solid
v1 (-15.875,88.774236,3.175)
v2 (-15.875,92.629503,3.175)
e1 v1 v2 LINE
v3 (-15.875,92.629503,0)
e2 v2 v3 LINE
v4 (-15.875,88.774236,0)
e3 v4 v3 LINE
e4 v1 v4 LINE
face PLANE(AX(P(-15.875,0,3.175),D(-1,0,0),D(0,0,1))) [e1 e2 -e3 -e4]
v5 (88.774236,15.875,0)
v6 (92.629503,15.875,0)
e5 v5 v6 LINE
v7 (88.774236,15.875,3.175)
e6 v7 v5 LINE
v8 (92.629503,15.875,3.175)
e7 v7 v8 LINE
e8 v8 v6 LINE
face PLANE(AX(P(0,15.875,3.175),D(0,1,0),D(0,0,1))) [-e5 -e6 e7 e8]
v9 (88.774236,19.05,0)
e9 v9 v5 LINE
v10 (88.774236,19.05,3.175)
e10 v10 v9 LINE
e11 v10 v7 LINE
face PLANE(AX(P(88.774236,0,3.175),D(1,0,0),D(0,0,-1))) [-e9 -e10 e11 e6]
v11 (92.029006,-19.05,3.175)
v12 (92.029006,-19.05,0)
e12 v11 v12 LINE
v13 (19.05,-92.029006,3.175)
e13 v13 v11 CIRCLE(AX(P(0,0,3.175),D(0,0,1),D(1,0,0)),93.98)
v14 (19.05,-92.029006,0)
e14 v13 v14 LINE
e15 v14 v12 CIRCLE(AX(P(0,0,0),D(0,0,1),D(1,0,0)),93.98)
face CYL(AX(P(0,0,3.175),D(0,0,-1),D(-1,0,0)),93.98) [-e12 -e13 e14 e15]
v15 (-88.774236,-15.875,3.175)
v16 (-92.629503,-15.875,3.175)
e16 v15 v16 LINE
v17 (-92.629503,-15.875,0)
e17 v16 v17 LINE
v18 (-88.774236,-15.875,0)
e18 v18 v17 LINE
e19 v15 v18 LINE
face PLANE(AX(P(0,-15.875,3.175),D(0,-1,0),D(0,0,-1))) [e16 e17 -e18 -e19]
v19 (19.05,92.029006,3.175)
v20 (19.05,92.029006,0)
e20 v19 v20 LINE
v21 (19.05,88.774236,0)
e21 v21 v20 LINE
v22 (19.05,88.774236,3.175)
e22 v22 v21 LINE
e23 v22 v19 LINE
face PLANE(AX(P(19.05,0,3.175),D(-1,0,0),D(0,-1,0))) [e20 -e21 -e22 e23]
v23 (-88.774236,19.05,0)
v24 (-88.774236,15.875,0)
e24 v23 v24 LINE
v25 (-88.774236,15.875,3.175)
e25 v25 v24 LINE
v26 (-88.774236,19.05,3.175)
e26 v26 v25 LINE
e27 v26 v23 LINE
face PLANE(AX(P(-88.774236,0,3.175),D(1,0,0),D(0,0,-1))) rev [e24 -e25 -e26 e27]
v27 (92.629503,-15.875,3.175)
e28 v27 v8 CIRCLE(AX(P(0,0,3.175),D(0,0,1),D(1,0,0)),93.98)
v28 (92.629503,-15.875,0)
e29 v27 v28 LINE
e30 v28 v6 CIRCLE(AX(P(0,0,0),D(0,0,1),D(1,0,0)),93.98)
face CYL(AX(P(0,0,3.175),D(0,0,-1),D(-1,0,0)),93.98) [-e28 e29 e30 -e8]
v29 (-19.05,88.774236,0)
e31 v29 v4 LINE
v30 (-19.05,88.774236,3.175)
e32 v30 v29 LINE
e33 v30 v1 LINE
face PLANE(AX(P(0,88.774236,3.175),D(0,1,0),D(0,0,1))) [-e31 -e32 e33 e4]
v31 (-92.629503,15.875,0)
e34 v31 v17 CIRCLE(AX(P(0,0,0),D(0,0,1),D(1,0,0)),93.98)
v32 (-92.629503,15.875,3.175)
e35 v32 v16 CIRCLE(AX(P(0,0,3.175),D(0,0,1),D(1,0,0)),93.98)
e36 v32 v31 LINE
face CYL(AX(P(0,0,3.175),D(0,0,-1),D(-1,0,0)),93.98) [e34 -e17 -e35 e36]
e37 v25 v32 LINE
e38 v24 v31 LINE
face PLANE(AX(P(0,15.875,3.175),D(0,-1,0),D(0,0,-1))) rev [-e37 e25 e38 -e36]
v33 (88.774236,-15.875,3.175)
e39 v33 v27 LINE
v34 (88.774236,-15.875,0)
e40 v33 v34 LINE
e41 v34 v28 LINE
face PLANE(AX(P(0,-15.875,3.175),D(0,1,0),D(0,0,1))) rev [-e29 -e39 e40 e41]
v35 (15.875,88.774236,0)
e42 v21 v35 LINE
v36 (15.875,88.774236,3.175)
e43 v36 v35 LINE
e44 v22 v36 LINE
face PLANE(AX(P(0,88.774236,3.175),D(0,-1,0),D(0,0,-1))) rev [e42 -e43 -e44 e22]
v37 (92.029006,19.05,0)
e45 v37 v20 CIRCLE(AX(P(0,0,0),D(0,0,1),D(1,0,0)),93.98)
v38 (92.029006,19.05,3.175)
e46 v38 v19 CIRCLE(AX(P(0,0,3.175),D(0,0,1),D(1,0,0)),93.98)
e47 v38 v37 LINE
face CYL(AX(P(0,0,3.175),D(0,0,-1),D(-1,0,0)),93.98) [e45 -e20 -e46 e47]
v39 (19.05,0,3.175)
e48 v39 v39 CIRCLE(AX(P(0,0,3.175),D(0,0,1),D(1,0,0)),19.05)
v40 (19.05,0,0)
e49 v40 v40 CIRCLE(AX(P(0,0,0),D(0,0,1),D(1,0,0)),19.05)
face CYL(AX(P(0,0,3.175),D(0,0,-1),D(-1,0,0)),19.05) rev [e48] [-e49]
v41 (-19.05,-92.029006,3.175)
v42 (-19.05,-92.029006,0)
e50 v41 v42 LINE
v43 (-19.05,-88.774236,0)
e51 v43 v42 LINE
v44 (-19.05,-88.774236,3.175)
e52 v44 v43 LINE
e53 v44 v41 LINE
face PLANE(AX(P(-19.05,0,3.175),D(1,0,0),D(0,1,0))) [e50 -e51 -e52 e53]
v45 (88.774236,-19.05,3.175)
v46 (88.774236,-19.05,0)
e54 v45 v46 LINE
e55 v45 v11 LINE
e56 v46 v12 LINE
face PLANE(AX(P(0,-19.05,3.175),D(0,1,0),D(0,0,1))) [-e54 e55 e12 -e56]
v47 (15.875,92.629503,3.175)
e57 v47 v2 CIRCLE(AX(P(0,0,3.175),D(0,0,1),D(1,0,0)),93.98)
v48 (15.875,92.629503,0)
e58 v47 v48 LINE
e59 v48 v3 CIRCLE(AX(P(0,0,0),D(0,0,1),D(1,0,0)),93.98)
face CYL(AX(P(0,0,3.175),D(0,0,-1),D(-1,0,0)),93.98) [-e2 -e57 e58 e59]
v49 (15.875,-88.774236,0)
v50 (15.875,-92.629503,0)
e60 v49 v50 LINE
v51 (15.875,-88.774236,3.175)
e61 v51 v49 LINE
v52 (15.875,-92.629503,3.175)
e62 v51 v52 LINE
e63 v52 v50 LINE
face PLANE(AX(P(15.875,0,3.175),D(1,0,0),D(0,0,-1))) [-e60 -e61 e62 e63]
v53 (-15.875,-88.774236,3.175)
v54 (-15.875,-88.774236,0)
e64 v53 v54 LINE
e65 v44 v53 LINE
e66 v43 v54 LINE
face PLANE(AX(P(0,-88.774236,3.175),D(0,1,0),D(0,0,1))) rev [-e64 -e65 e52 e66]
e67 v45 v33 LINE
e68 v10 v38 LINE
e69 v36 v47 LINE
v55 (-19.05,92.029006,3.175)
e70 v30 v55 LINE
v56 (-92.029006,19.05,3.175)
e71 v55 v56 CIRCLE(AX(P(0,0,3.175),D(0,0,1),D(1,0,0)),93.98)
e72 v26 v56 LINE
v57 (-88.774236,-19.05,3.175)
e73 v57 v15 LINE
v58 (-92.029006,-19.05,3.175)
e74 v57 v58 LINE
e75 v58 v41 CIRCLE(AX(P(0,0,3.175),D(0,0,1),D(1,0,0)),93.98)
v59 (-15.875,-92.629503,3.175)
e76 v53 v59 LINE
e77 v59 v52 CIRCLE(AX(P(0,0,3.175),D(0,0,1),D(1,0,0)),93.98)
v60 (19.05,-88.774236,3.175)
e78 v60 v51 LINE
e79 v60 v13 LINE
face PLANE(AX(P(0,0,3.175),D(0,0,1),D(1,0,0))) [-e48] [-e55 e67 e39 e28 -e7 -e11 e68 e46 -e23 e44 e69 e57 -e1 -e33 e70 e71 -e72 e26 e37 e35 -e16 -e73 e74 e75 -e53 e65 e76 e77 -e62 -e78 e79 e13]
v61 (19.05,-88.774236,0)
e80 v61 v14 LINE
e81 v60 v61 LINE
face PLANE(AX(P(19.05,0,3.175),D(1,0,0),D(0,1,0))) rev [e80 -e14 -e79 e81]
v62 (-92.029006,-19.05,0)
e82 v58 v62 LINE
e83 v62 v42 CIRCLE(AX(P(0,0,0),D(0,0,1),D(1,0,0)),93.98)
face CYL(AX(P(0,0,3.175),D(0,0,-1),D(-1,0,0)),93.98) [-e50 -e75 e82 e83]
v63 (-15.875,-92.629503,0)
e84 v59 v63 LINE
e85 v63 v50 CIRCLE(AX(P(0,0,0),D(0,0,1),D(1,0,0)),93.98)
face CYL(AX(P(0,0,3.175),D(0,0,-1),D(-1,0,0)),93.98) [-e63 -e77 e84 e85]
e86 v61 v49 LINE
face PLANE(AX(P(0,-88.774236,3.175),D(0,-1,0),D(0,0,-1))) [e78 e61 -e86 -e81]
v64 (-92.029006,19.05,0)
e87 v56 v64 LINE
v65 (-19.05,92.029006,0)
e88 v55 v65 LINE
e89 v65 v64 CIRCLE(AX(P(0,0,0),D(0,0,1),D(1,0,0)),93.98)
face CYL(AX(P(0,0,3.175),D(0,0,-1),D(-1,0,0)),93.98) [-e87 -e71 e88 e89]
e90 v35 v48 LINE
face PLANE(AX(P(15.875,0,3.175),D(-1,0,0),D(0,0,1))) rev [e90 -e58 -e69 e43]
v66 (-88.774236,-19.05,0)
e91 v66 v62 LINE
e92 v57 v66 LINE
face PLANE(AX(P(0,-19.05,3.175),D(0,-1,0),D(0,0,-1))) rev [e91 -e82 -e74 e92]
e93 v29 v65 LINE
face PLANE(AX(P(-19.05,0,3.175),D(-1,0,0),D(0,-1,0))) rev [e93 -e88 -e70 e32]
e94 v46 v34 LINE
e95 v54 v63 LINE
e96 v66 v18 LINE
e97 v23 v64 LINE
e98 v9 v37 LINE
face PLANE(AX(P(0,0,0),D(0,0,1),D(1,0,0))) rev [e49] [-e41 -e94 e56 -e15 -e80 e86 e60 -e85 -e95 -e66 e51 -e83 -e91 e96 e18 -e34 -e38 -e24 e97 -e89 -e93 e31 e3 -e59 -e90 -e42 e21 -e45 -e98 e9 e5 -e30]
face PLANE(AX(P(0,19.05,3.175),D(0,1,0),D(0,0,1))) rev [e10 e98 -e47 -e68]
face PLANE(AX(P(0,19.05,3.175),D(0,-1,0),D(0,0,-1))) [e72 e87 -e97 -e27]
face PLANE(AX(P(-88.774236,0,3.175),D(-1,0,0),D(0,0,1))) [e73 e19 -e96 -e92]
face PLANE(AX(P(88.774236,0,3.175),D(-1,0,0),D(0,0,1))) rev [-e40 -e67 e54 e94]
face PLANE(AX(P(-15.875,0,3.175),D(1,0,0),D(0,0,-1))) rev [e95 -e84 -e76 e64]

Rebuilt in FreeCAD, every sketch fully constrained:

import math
import FreeCAD as App
import Part
import Sketcher
Q = App.Units.Quantity

doc = App.newDocument("Part")
body = doc.addObject("PartDesign::Body", "Body")

# Sketch on XY plane
sketch1 = body.newObject("Sketcher::SketchObject", "Sketch")
sketch1.AttachmentSupport = (doc.getObject("XY_Plane"), [""])
sketch1.MapMode = "FlatFace"
sketch1.addGeometry([
    Part.LineSegment(App.Vector(-19.1, -92, 0), App.Vector(-19.1, -88.8, 0)),  # 0
    Part.LineSegment(App.Vector(-19.1, -88.8, 0), App.Vector(-15.9, -88.8, 0)),  # 1
    Part.LineSegment(App.Vector(-15.9, -88.8, 0), App.Vector(-15.9, -92.6, 0)),  # 2
    Part.ArcOfCircle(Part.Circle(App.Vector(0, 0, 0), App.Vector(0, 0, 1), 94), math.radians(-99.72), math.radians(-80.28)),  # 3
    Part.LineSegment(App.Vector(15.9, -92.6, 0), App.Vector(15.9, -88.8, 0)),  # 4
    Part.LineSegment(App.Vector(15.9, -88.8, 0), App.Vector(19.1, -88.8, 0)),  # 5
    Part.LineSegment(App.Vector(19.1, -88.8, 0), App.Vector(19.1, -92, 0)),  # 6
    Part.ArcOfCircle(Part.Circle(App.Vector(0, 0, 0), App.Vector(0, 0, 1), 94), math.radians(-78.3), math.radians(-76.32)),  # 7
    Part.ArcOfCircle(Part.Circle(App.Vector(0, 0, 0), App.Vector(0, 0, 1), 94), math.radians(-76), math.radians(-12)),  # 8
    Part.LineSegment(App.Vector(92, -19.1, 0), App.Vector(88.8, -19.1, 0)),  # 9
    Part.LineSegment(App.Vector(88.8, -19.1, 0), App.Vector(88.8, -15.9, 0)),  # 10
    Part.LineSegment(App.Vector(88.8, -15.9, 0), App.Vector(92.6, -15.9, 0)),  # 11
    Part.ArcOfCircle(Part.Circle(App.Vector(0, 0, 0), App.Vector(0, 0, 1), 94), math.radians(-9.72), math.radians(9.72)),  # 12
    Part.LineSegment(App.Vector(92.6, 15.9, 0), App.Vector(88.8, 15.9, 0)),  # 13
    Part.LineSegment(App.Vector(88.8, 15.9, 0), App.Vector(88.8, 19.1, 0)),  # 14
    Part.LineSegment(App.Vector(88.8, 19.1, 0), App.Vector(92, 19.1, 0)),  # 15
    Part.ArcOfCircle(Part.Circle(App.Vector(0, 0, 0), App.Vector(0, 0, 1), 94), math.radians(12), math.radians(78)),  # 16
    Part.LineSegment(App.Vector(19.1, 92, 0), App.Vector(19.1, 88.8, 0)),  # 17
    Part.LineSegment(App.Vector(19.1, 88.8, 0), App.Vector(15.9, 88.8, 0)),  # 18
    Part.LineSegment(App.Vector(15.9, 88.8, 0), App.Vector(15.9, 92.6, 0)),  # 19
    Part.ArcOfCircle(Part.Circle(App.Vector(0, 0, 0), App.Vector(0, 0, 1), 94), math.radians(80.28), math.radians(99.72)),  # 20
    Part.LineSegment(App.Vector(-15.9, 92.6, 0), App.Vector(-15.9, 88.8, 0)),  # 21
    Part.LineSegment(App.Vector(-15.9, 88.8, 0), App.Vector(-19.1, 88.8, 0)),  # 22
    Part.LineSegment(App.Vector(-19.1, 88.8, 0), App.Vector(-19.1, 92, 0)),  # 23
    Part.ArcOfCircle(Part.Circle(App.Vector(0, 0, 0), App.Vector(0, 0, 1), 94), math.radians(101.7), math.radians(103.68)),  # 24
    Part.ArcOfCircle(Part.Circle(App.Vector(0, 0, 0), App.Vector(0, 0, 1), 94), math.radians(104), math.radians(166)),  # 25
    Part.ArcOfCircle(Part.Circle(App.Vector(0, 0, 0), App.Vector(0, 0, 1), 94), math.radians(166.32), math.radians(168.3)),  # 26
    Part.LineSegment(App.Vector(-92, 19.1, 0), App.Vector(-88.8, 19.1, 0)),  # 27
    Part.LineSegment(App.Vector(-88.8, 19.1, 0), App.Vector(-88.8, 15.9, 0)),  # 28
    Part.LineSegment(App.Vector(-88.8, 15.9, 0), App.Vector(-92.6, 15.9, 0)),  # 29
    Part.ArcOfCircle(Part.Circle(App.Vector(0, 0, 0), App.Vector(0, 0, 1), 94), math.radians(170.28), math.radians(189.72)),  # 30
    Part.LineSegment(App.Vector(-92.6, -15.9, 0), App.Vector(-88.8, -15.9, 0)),  # 31
    Part.LineSegment(App.Vector(-88.8, -15.9, 0), App.Vector(-88.8, -19.1, 0)),  # 32
    Part.LineSegment(App.Vector(-88.8, -19.1, 0), App.Vector(-92, -19.1, 0)),  # 33
    Part.ArcOfCircle(Part.Circle(App.Vector(0, 0, 0), App.Vector(0, 0, 1), 94), math.radians(-168), math.radians(-102)),  # 34
    Part.Circle(App.Vector(0, 0, 0), App.Vector(0, 0, 1), 19.1),  # 35
], False)
sketch1.addConstraint([
    Sketcher.Constraint("Coincident", 0, 2, 1, 1),
    Sketcher.Constraint("Coincident", 1, 2, 2, 1),
    Sketcher.Constraint("Coincident", 2, 2, 3, 1),
    Sketcher.Constraint("Coincident", 3, 2, 4, 1),
    Sketcher.Constraint("Coincident", 4, 2, 5, 1),
    Sketcher.Constraint("Coincident", 5, 2, 6, 1),
    Sketcher.Constraint("Coincident", 6, 2, 7, 1),
    Sketcher.Constraint("Tangent", 7, 2, 8, 1),
    Sketcher.Constraint("Coincident", 8, 2, 9, 1),
    Sketcher.Constraint("Coincident", 9, 2, 10, 1),
    Sketcher.Constraint("Coincident", 10, 2, 11, 1),
    Sketcher.Constraint("Coincident", 11, 2, 12, 1),
    Sketcher.Constraint("Coincident", 12, 2, 13, 1),
    Sketcher.Constraint("Coincident", 13, 2, 14, 1),
    Sketcher.Constraint("Coincident", 14, 2, 15, 1),
    Sketcher.Constraint("Coincident", 15, 2, 16, 1),
    Sketcher.Constraint("Coincident", 16, 2, 17, 1),
    Sketcher.Constraint("Coincident", 17, 2, 18, 1),
    Sketcher.Constraint("Coincident", 18, 2, 19, 1),
    Sketcher.Constraint("Coincident", 19, 2, 20, 1),
    Sketcher.Constraint("Coincident", 20, 2, 21, 1),
    Sketcher.Constraint("Coincident", 21, 2, 22, 1),
    Sketcher.Constraint("Coincident", 22, 2, 23, 1),
    Sketcher.Constraint("Coincident", 23, 2, 24, 1),
    Sketcher.Constraint("Tangent", 24, 2, 25, 1),
    Sketcher.Constraint("Tangent", 25, 2, 26, 1),
    Sketcher.Constraint("Coincident", 26, 2, 27, 1),
    Sketcher.Constraint("Coincident", 27, 2, 28, 1),
    Sketcher.Constraint("Coincident", 28, 2, 29, 1),
    Sketcher.Constraint("Coincident", 29, 2, 30, 1),
    Sketcher.Constraint("Coincident", 30, 2, 31, 1),
    Sketcher.Constraint("Coincident", 31, 2, 32, 1),
    Sketcher.Constraint("Coincident", 32, 2, 33, 1),
    Sketcher.Constraint("Coincident", 33, 2, 34, 1),
    Sketcher.Constraint("Coincident", 34, 2, 0, 1),
    Sketcher.Constraint("Vertical", 0),
    Sketcher.Constraint("Horizontal", 1),
    Sketcher.Constraint("Vertical", 2),
    Sketcher.Constraint("Vertical", 4),
    Sketcher.Constraint("Horizontal", 5),
    Sketcher.Constraint("Vertical", 6),
    Sketcher.Constraint("Horizontal", 9),
    Sketcher.Constraint("Vertical", 10),
    Sketcher.Constraint("Horizontal", 11),
    Sketcher.Constraint("Horizontal", 13),
    Sketcher.Constraint("Vertical", 14),
    Sketcher.Constraint("Horizontal", 15),
    Sketcher.Constraint("Vertical", 17),
    Sketcher.Constraint("Horizontal", 18),
    Sketcher.Constraint("Vertical", 19),
    Sketcher.Constraint("Vertical", 21),
    Sketcher.Constraint("Horizontal", 22),
    Sketcher.Constraint("Vertical", 23),
    Sketcher.Constraint("Horizontal", 27),
    Sketcher.Constraint("Vertical", 28),
    Sketcher.Constraint("Horizontal", 29),
    Sketcher.Constraint("Horizontal", 31),
    Sketcher.Constraint("Vertical", 32),
    Sketcher.Constraint("Horizontal", 33),
    Sketcher.Constraint("Coincident", 3, 3, -1, 1),
    Sketcher.Constraint("Coincident", 7, 3, -1, 1),
    Sketcher.Constraint("Coincident", 12, 3, -1, 1),
    Sketcher.Constraint("Coincident", 16, 3, -1, 1),
    Sketcher.Constraint("Coincident", 20, 3, -1, 1),
    Sketcher.Constraint("Coincident", 24, 3, -1, 1),
    Sketcher.Constraint("Coincident", 26, 3, -1, 1),
    Sketcher.Constraint("Coincident", 30, 3, -1, 1),
    Sketcher.Constraint("Coincident", 34, 3, -1, 1),
    Sketcher.Constraint("Coincident", 35, 3, -1, 1),
    Sketcher.Constraint("Equal", 3, 7),
    Sketcher.Constraint("Equal", 7, 8),
    Sketcher.Constraint("Equal", 8, 12),
    Sketcher.Constraint("Equal", 12, 16),
    Sketcher.Constraint("Equal", 16, 20),
    Sketcher.Constraint("Equal", 20, 24),
    Sketcher.Constraint("Equal", 26, 30),
    Sketcher.Constraint("Equal", 30, 34),
    Sketcher.Constraint("Symmetric", 0, 2, 17, 2, -1, 1),
    Sketcher.Constraint("Symmetric", 4, 2, 21, 2, -1, 1),
    Sketcher.Constraint("Symmetric", 9, 2, 27, 2, -1, 1),
    Sketcher.Constraint("Symmetric", 13, 2, 31, 2, -1, 1),
    Sketcher.Constraint("Symmetric", 1, 2, 4, 2, -2),
    Sketcher.Constraint("Symmetric", 14, 2, 27, 2, -2),
    Sketcher.Constraint("Horizontal", 19, 2, 20, 2),
    Sketcher.Constraint("Horizontal", 16, 2, 23, 2),
    Sketcher.Constraint("Horizontal", 13, 2, 28, 2),
    Sketcher.Constraint("Horizontal", 11, 2, 30, 2),
    Sketcher.Constraint("Horizontal", 9, 2, 32, 2),
    Sketcher.Constraint("Horizontal", 6, 2, 34, 2),
    Sketcher.Constraint("Equal", 33, 0),
    Sketcher.Constraint("Equal", 31, 2),
    Sketcher.Constraint("Equal", 22, 10),
    Sketcher.Constraint("Diameter", 35, Q("1.5 in")),
    Sketcher.Constraint("Radius", 3, Q("3.7 in")),
    Sketcher.Constraint("DistanceX", 0, 2, 5, 2, Q("1.5 in")),
    Sketcher.Constraint("DistanceY", 7, 2, 5, 2, Q("0.1 in")),
    Sketcher.Constraint("DistanceX", 2, 2, 7, 2, Q("1.5 in")),
    Sketcher.Constraint("DistanceY", 22, 2, 24, 2, Q("0.1 in")),
    Sketcher.Constraint("DistanceX", 25, 2, 27, 2, Q("0.1 in")),
    Sketcher.Constraint("DistanceX", 1, 1, 1, 2, Q("0.125 in")),
])
pad1 = body.newObject("PartDesign::Pad", "Pad")
pad1.Profile = sketch1
pad1.Length = Q("0.125 in")

doc.recompute()
